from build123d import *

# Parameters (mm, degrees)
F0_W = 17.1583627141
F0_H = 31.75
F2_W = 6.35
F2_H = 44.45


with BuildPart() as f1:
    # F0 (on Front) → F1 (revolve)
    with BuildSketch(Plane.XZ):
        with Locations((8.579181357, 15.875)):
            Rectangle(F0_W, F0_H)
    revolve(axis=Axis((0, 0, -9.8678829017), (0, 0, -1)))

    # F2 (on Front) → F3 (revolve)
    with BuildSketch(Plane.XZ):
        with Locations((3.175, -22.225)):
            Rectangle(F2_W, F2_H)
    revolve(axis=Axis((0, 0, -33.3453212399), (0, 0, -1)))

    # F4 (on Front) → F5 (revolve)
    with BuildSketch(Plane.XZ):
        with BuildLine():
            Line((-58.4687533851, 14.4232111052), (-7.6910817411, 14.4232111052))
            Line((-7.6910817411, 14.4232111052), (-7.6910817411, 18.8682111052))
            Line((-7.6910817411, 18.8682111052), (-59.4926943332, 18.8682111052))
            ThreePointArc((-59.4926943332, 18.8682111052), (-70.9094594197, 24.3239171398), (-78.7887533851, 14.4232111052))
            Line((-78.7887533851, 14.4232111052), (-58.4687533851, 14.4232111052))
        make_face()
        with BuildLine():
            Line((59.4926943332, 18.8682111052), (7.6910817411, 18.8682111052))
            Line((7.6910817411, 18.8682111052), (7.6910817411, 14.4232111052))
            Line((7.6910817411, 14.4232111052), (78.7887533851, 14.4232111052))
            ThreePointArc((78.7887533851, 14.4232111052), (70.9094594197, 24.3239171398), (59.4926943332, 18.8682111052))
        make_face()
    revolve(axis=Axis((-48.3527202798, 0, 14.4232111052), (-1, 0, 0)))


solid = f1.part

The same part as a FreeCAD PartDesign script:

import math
import FreeCAD as App
import Part
import Sketcher
Q = App.Units.Quantity


def add_polygon(sketch, points):
    """Adds a closed chain of lines whose ends are joined by coincident constraints."""
    first, n = sketch.GeometryCount, len(points)
    for a, b in zip(points, points[1:] + points[:1]):
        sketch.addGeometry(Part.LineSegment(App.Vector(*a, 0), App.Vector(*b, 0)), False)
    for i in range(n):
        sketch.addConstraint(Sketcher.Constraint("Coincident", first + i, 2, first + (i + 1) % n, 1))

doc = App.newDocument("Part")
body = doc.addObject("PartDesign::Body", "Body")

sketch1 = doc.addObject("Sketcher::SketchObject", "Sketch")
body.addObject(sketch1)
sketch1.AttachmentSupport = (doc.XZ_Plane, [""])
sketch1.MapMode = "FlatFace"
add_polygon(sketch1, [(0, 32), (0, 0), (17, 0), (17, 32)])
sketch1.addConstraint([
    Sketcher.Constraint("Vertical", 0),
    Sketcher.Constraint("Horizontal", 1),
    Sketcher.Constraint("Vertical", 2),
    Sketcher.Constraint("Horizontal", 3),
    Sketcher.Constraint("Coincident", 0, 2, -1, 1),
    Sketcher.Constraint("DistanceY", 0, 2, 0, 1, Q("1.25 in")),
    Sketcher.Constraint("DistanceX", 1, 1, 1, 2, Q("17.158363 mm")),
])
revolution = doc.addObject("PartDesign::Revolution", "Revolution")
body.addObject(revolution)
revolution.Profile = sketch1
revolution.ReferenceAxis = (sketch1, ["V_Axis"])
revolution.Angle = 360

sketch2 = doc.addObject("Sketcher::SketchObject", "Sketch001")
body.addObject(sketch2)
sketch2.AttachmentSupport = (doc.XZ_Plane, [""])
sketch2.MapMode = "FlatFace"
add_polygon(sketch2, [(0, 0), (0, -44), (6, -44), (6, 0)])
sketch2.addConstraint([
    Sketcher.Constraint("Vertical", 0),
    Sketcher.Constraint("Horizontal", 1),
    Sketcher.Constraint("Vertical", 2),
    Sketcher.Constraint("Horizontal", 3),
    Sketcher.Constraint("Coincident", 3, 2, -1, 1),
    Sketcher.Constraint("DistanceX", 1, 1, 1, 2, Q("0.25 in")),
    Sketcher.Constraint("DistanceY", 0, 2, 0, 1, Q("1.75 in")),
])
revolution2 = doc.addObject("PartDesign::Revolution", "Revolution001")
body.addObject(revolution2)
revolution2.Profile = sketch2
revolution2.ReferenceAxis = (sketch2, ["V_Axis"])
revolution2.Angle = 360

sketch3 = doc.addObject("Sketcher::SketchObject", "Sketch002")
body.addObject(sketch3)
sketch3.AttachmentSupport = (doc.XZ_Plane, [""])
sketch3.MapMode = "FlatFace"
sketch3.addGeometry([
    Part.LineSegment(App.Vector(-7.7, 14.4, 0), App.Vector(-7.7, 18.9, 0)),
    Part.LineSegment(App.Vector(-7.7, 18.9, 0), App.Vector(-59.5, 18.9, 0)),
    Part.ArcOfCircle(Part.Circle(App.Vector(-68.6, 14.4, 0), App.Vector(0, 0, 1), 10.2), math.radians(26), math.radians(180)),
    Part.LineSegment(App.Vector(-78.8, 14.4, 0), App.Vector(-7.7, 14.4, 0)),
    Part.LineSegment(App.Vector(59.5, 18.9, 0), App.Vector(7.7, 18.9, 0)),
    Part.LineSegment(App.Vector(7.7, 18.9, 0), App.Vector(7.7, 14.4, 0)),
    Part.LineSegment(App.Vector(7.7, 14.4, 0), App.Vector(78.8, 14.4, 0)),
    Part.ArcOfCircle(Part.Circle(App.Vector(68.6, 14.4, 0), App.Vector(0, 0, 1), 10.2), math.radians(0), math.radians(154)),
], False)
sketch3.addGeometry(Part.LineSegment(App.Vector(78.8, 14.4, 0), App.Vector(-78.8, 14.4, 0)), True)
sketch3.addConstraint([
    Sketcher.Constraint("Coincident", 0, 2, 1, 1),
    Sketcher.Constraint("Coincident", 1, 2, 2, 1),
    Sketcher.Constraint("Coincident", 2, 2, 3, 1),
    Sketcher.Constraint("Coincident", 3, 2, 0, 1),
    Sketcher.Constraint("Coincident", 4, 2, 5, 1),
    Sketcher.Constraint("Coincident", 5, 2, 6, 1),
    Sketcher.Constraint("Coincident", 6, 2, 7, 1),
    Sketcher.Constraint("Coincident", 7, 2, 4, 1),
    Sketcher.Constraint("Vertical", 0),
    Sketcher.Constraint("Horizontal", 1),
    Sketcher.Constraint("Horizontal", 3),
    Sketcher.Constraint("Horizontal", 4),
    Sketcher.Constraint("Vertical", 5),
    Sketcher.Constraint("Horizontal", 6),
    Sketcher.Constraint("Horizontal", 8),
    Sketcher.Constraint("Coincident", 8, 1, 6, 2),
    Sketcher.Constraint("Coincident", 8, 2, 2, 2),
    Sketcher.Constraint("Equal", 2, 7),
    Sketcher.Constraint("Symmetric", 2, 3, 7, 3, -2),
    Sketcher.Constraint("Symmetric", 0, 2, 4, 2, -2),
    Sketcher.Constraint("Horizontal", 7, 3, 2, 2),
    Sketcher.Constraint("Radius", 2, Q("0.4 in")),
    Sketcher.Constraint("DistanceY", 0, 1, 0, 2, Q("0.175 in")),
    Sketcher.Constraint("DistanceX", 3, 1, 3, 2, Q("71.097672 mm")),
    Sketcher.Constraint("DistanceX", 8, 2, 8, 1, Q("157.577507 mm")),
    Sketcher.Constraint("DistanceY", -1, 1, 2, 3, Q("14.423211 mm")),
])
revolution3 = doc.addObject("PartDesign::Revolution", "Revolution002")
body.addObject(revolution3)
revolution3.Profile = sketch3
revolution3.ReferenceAxis = (sketch3, ["Axis0"])
revolution3.Angle = 360

doc.recompute()
